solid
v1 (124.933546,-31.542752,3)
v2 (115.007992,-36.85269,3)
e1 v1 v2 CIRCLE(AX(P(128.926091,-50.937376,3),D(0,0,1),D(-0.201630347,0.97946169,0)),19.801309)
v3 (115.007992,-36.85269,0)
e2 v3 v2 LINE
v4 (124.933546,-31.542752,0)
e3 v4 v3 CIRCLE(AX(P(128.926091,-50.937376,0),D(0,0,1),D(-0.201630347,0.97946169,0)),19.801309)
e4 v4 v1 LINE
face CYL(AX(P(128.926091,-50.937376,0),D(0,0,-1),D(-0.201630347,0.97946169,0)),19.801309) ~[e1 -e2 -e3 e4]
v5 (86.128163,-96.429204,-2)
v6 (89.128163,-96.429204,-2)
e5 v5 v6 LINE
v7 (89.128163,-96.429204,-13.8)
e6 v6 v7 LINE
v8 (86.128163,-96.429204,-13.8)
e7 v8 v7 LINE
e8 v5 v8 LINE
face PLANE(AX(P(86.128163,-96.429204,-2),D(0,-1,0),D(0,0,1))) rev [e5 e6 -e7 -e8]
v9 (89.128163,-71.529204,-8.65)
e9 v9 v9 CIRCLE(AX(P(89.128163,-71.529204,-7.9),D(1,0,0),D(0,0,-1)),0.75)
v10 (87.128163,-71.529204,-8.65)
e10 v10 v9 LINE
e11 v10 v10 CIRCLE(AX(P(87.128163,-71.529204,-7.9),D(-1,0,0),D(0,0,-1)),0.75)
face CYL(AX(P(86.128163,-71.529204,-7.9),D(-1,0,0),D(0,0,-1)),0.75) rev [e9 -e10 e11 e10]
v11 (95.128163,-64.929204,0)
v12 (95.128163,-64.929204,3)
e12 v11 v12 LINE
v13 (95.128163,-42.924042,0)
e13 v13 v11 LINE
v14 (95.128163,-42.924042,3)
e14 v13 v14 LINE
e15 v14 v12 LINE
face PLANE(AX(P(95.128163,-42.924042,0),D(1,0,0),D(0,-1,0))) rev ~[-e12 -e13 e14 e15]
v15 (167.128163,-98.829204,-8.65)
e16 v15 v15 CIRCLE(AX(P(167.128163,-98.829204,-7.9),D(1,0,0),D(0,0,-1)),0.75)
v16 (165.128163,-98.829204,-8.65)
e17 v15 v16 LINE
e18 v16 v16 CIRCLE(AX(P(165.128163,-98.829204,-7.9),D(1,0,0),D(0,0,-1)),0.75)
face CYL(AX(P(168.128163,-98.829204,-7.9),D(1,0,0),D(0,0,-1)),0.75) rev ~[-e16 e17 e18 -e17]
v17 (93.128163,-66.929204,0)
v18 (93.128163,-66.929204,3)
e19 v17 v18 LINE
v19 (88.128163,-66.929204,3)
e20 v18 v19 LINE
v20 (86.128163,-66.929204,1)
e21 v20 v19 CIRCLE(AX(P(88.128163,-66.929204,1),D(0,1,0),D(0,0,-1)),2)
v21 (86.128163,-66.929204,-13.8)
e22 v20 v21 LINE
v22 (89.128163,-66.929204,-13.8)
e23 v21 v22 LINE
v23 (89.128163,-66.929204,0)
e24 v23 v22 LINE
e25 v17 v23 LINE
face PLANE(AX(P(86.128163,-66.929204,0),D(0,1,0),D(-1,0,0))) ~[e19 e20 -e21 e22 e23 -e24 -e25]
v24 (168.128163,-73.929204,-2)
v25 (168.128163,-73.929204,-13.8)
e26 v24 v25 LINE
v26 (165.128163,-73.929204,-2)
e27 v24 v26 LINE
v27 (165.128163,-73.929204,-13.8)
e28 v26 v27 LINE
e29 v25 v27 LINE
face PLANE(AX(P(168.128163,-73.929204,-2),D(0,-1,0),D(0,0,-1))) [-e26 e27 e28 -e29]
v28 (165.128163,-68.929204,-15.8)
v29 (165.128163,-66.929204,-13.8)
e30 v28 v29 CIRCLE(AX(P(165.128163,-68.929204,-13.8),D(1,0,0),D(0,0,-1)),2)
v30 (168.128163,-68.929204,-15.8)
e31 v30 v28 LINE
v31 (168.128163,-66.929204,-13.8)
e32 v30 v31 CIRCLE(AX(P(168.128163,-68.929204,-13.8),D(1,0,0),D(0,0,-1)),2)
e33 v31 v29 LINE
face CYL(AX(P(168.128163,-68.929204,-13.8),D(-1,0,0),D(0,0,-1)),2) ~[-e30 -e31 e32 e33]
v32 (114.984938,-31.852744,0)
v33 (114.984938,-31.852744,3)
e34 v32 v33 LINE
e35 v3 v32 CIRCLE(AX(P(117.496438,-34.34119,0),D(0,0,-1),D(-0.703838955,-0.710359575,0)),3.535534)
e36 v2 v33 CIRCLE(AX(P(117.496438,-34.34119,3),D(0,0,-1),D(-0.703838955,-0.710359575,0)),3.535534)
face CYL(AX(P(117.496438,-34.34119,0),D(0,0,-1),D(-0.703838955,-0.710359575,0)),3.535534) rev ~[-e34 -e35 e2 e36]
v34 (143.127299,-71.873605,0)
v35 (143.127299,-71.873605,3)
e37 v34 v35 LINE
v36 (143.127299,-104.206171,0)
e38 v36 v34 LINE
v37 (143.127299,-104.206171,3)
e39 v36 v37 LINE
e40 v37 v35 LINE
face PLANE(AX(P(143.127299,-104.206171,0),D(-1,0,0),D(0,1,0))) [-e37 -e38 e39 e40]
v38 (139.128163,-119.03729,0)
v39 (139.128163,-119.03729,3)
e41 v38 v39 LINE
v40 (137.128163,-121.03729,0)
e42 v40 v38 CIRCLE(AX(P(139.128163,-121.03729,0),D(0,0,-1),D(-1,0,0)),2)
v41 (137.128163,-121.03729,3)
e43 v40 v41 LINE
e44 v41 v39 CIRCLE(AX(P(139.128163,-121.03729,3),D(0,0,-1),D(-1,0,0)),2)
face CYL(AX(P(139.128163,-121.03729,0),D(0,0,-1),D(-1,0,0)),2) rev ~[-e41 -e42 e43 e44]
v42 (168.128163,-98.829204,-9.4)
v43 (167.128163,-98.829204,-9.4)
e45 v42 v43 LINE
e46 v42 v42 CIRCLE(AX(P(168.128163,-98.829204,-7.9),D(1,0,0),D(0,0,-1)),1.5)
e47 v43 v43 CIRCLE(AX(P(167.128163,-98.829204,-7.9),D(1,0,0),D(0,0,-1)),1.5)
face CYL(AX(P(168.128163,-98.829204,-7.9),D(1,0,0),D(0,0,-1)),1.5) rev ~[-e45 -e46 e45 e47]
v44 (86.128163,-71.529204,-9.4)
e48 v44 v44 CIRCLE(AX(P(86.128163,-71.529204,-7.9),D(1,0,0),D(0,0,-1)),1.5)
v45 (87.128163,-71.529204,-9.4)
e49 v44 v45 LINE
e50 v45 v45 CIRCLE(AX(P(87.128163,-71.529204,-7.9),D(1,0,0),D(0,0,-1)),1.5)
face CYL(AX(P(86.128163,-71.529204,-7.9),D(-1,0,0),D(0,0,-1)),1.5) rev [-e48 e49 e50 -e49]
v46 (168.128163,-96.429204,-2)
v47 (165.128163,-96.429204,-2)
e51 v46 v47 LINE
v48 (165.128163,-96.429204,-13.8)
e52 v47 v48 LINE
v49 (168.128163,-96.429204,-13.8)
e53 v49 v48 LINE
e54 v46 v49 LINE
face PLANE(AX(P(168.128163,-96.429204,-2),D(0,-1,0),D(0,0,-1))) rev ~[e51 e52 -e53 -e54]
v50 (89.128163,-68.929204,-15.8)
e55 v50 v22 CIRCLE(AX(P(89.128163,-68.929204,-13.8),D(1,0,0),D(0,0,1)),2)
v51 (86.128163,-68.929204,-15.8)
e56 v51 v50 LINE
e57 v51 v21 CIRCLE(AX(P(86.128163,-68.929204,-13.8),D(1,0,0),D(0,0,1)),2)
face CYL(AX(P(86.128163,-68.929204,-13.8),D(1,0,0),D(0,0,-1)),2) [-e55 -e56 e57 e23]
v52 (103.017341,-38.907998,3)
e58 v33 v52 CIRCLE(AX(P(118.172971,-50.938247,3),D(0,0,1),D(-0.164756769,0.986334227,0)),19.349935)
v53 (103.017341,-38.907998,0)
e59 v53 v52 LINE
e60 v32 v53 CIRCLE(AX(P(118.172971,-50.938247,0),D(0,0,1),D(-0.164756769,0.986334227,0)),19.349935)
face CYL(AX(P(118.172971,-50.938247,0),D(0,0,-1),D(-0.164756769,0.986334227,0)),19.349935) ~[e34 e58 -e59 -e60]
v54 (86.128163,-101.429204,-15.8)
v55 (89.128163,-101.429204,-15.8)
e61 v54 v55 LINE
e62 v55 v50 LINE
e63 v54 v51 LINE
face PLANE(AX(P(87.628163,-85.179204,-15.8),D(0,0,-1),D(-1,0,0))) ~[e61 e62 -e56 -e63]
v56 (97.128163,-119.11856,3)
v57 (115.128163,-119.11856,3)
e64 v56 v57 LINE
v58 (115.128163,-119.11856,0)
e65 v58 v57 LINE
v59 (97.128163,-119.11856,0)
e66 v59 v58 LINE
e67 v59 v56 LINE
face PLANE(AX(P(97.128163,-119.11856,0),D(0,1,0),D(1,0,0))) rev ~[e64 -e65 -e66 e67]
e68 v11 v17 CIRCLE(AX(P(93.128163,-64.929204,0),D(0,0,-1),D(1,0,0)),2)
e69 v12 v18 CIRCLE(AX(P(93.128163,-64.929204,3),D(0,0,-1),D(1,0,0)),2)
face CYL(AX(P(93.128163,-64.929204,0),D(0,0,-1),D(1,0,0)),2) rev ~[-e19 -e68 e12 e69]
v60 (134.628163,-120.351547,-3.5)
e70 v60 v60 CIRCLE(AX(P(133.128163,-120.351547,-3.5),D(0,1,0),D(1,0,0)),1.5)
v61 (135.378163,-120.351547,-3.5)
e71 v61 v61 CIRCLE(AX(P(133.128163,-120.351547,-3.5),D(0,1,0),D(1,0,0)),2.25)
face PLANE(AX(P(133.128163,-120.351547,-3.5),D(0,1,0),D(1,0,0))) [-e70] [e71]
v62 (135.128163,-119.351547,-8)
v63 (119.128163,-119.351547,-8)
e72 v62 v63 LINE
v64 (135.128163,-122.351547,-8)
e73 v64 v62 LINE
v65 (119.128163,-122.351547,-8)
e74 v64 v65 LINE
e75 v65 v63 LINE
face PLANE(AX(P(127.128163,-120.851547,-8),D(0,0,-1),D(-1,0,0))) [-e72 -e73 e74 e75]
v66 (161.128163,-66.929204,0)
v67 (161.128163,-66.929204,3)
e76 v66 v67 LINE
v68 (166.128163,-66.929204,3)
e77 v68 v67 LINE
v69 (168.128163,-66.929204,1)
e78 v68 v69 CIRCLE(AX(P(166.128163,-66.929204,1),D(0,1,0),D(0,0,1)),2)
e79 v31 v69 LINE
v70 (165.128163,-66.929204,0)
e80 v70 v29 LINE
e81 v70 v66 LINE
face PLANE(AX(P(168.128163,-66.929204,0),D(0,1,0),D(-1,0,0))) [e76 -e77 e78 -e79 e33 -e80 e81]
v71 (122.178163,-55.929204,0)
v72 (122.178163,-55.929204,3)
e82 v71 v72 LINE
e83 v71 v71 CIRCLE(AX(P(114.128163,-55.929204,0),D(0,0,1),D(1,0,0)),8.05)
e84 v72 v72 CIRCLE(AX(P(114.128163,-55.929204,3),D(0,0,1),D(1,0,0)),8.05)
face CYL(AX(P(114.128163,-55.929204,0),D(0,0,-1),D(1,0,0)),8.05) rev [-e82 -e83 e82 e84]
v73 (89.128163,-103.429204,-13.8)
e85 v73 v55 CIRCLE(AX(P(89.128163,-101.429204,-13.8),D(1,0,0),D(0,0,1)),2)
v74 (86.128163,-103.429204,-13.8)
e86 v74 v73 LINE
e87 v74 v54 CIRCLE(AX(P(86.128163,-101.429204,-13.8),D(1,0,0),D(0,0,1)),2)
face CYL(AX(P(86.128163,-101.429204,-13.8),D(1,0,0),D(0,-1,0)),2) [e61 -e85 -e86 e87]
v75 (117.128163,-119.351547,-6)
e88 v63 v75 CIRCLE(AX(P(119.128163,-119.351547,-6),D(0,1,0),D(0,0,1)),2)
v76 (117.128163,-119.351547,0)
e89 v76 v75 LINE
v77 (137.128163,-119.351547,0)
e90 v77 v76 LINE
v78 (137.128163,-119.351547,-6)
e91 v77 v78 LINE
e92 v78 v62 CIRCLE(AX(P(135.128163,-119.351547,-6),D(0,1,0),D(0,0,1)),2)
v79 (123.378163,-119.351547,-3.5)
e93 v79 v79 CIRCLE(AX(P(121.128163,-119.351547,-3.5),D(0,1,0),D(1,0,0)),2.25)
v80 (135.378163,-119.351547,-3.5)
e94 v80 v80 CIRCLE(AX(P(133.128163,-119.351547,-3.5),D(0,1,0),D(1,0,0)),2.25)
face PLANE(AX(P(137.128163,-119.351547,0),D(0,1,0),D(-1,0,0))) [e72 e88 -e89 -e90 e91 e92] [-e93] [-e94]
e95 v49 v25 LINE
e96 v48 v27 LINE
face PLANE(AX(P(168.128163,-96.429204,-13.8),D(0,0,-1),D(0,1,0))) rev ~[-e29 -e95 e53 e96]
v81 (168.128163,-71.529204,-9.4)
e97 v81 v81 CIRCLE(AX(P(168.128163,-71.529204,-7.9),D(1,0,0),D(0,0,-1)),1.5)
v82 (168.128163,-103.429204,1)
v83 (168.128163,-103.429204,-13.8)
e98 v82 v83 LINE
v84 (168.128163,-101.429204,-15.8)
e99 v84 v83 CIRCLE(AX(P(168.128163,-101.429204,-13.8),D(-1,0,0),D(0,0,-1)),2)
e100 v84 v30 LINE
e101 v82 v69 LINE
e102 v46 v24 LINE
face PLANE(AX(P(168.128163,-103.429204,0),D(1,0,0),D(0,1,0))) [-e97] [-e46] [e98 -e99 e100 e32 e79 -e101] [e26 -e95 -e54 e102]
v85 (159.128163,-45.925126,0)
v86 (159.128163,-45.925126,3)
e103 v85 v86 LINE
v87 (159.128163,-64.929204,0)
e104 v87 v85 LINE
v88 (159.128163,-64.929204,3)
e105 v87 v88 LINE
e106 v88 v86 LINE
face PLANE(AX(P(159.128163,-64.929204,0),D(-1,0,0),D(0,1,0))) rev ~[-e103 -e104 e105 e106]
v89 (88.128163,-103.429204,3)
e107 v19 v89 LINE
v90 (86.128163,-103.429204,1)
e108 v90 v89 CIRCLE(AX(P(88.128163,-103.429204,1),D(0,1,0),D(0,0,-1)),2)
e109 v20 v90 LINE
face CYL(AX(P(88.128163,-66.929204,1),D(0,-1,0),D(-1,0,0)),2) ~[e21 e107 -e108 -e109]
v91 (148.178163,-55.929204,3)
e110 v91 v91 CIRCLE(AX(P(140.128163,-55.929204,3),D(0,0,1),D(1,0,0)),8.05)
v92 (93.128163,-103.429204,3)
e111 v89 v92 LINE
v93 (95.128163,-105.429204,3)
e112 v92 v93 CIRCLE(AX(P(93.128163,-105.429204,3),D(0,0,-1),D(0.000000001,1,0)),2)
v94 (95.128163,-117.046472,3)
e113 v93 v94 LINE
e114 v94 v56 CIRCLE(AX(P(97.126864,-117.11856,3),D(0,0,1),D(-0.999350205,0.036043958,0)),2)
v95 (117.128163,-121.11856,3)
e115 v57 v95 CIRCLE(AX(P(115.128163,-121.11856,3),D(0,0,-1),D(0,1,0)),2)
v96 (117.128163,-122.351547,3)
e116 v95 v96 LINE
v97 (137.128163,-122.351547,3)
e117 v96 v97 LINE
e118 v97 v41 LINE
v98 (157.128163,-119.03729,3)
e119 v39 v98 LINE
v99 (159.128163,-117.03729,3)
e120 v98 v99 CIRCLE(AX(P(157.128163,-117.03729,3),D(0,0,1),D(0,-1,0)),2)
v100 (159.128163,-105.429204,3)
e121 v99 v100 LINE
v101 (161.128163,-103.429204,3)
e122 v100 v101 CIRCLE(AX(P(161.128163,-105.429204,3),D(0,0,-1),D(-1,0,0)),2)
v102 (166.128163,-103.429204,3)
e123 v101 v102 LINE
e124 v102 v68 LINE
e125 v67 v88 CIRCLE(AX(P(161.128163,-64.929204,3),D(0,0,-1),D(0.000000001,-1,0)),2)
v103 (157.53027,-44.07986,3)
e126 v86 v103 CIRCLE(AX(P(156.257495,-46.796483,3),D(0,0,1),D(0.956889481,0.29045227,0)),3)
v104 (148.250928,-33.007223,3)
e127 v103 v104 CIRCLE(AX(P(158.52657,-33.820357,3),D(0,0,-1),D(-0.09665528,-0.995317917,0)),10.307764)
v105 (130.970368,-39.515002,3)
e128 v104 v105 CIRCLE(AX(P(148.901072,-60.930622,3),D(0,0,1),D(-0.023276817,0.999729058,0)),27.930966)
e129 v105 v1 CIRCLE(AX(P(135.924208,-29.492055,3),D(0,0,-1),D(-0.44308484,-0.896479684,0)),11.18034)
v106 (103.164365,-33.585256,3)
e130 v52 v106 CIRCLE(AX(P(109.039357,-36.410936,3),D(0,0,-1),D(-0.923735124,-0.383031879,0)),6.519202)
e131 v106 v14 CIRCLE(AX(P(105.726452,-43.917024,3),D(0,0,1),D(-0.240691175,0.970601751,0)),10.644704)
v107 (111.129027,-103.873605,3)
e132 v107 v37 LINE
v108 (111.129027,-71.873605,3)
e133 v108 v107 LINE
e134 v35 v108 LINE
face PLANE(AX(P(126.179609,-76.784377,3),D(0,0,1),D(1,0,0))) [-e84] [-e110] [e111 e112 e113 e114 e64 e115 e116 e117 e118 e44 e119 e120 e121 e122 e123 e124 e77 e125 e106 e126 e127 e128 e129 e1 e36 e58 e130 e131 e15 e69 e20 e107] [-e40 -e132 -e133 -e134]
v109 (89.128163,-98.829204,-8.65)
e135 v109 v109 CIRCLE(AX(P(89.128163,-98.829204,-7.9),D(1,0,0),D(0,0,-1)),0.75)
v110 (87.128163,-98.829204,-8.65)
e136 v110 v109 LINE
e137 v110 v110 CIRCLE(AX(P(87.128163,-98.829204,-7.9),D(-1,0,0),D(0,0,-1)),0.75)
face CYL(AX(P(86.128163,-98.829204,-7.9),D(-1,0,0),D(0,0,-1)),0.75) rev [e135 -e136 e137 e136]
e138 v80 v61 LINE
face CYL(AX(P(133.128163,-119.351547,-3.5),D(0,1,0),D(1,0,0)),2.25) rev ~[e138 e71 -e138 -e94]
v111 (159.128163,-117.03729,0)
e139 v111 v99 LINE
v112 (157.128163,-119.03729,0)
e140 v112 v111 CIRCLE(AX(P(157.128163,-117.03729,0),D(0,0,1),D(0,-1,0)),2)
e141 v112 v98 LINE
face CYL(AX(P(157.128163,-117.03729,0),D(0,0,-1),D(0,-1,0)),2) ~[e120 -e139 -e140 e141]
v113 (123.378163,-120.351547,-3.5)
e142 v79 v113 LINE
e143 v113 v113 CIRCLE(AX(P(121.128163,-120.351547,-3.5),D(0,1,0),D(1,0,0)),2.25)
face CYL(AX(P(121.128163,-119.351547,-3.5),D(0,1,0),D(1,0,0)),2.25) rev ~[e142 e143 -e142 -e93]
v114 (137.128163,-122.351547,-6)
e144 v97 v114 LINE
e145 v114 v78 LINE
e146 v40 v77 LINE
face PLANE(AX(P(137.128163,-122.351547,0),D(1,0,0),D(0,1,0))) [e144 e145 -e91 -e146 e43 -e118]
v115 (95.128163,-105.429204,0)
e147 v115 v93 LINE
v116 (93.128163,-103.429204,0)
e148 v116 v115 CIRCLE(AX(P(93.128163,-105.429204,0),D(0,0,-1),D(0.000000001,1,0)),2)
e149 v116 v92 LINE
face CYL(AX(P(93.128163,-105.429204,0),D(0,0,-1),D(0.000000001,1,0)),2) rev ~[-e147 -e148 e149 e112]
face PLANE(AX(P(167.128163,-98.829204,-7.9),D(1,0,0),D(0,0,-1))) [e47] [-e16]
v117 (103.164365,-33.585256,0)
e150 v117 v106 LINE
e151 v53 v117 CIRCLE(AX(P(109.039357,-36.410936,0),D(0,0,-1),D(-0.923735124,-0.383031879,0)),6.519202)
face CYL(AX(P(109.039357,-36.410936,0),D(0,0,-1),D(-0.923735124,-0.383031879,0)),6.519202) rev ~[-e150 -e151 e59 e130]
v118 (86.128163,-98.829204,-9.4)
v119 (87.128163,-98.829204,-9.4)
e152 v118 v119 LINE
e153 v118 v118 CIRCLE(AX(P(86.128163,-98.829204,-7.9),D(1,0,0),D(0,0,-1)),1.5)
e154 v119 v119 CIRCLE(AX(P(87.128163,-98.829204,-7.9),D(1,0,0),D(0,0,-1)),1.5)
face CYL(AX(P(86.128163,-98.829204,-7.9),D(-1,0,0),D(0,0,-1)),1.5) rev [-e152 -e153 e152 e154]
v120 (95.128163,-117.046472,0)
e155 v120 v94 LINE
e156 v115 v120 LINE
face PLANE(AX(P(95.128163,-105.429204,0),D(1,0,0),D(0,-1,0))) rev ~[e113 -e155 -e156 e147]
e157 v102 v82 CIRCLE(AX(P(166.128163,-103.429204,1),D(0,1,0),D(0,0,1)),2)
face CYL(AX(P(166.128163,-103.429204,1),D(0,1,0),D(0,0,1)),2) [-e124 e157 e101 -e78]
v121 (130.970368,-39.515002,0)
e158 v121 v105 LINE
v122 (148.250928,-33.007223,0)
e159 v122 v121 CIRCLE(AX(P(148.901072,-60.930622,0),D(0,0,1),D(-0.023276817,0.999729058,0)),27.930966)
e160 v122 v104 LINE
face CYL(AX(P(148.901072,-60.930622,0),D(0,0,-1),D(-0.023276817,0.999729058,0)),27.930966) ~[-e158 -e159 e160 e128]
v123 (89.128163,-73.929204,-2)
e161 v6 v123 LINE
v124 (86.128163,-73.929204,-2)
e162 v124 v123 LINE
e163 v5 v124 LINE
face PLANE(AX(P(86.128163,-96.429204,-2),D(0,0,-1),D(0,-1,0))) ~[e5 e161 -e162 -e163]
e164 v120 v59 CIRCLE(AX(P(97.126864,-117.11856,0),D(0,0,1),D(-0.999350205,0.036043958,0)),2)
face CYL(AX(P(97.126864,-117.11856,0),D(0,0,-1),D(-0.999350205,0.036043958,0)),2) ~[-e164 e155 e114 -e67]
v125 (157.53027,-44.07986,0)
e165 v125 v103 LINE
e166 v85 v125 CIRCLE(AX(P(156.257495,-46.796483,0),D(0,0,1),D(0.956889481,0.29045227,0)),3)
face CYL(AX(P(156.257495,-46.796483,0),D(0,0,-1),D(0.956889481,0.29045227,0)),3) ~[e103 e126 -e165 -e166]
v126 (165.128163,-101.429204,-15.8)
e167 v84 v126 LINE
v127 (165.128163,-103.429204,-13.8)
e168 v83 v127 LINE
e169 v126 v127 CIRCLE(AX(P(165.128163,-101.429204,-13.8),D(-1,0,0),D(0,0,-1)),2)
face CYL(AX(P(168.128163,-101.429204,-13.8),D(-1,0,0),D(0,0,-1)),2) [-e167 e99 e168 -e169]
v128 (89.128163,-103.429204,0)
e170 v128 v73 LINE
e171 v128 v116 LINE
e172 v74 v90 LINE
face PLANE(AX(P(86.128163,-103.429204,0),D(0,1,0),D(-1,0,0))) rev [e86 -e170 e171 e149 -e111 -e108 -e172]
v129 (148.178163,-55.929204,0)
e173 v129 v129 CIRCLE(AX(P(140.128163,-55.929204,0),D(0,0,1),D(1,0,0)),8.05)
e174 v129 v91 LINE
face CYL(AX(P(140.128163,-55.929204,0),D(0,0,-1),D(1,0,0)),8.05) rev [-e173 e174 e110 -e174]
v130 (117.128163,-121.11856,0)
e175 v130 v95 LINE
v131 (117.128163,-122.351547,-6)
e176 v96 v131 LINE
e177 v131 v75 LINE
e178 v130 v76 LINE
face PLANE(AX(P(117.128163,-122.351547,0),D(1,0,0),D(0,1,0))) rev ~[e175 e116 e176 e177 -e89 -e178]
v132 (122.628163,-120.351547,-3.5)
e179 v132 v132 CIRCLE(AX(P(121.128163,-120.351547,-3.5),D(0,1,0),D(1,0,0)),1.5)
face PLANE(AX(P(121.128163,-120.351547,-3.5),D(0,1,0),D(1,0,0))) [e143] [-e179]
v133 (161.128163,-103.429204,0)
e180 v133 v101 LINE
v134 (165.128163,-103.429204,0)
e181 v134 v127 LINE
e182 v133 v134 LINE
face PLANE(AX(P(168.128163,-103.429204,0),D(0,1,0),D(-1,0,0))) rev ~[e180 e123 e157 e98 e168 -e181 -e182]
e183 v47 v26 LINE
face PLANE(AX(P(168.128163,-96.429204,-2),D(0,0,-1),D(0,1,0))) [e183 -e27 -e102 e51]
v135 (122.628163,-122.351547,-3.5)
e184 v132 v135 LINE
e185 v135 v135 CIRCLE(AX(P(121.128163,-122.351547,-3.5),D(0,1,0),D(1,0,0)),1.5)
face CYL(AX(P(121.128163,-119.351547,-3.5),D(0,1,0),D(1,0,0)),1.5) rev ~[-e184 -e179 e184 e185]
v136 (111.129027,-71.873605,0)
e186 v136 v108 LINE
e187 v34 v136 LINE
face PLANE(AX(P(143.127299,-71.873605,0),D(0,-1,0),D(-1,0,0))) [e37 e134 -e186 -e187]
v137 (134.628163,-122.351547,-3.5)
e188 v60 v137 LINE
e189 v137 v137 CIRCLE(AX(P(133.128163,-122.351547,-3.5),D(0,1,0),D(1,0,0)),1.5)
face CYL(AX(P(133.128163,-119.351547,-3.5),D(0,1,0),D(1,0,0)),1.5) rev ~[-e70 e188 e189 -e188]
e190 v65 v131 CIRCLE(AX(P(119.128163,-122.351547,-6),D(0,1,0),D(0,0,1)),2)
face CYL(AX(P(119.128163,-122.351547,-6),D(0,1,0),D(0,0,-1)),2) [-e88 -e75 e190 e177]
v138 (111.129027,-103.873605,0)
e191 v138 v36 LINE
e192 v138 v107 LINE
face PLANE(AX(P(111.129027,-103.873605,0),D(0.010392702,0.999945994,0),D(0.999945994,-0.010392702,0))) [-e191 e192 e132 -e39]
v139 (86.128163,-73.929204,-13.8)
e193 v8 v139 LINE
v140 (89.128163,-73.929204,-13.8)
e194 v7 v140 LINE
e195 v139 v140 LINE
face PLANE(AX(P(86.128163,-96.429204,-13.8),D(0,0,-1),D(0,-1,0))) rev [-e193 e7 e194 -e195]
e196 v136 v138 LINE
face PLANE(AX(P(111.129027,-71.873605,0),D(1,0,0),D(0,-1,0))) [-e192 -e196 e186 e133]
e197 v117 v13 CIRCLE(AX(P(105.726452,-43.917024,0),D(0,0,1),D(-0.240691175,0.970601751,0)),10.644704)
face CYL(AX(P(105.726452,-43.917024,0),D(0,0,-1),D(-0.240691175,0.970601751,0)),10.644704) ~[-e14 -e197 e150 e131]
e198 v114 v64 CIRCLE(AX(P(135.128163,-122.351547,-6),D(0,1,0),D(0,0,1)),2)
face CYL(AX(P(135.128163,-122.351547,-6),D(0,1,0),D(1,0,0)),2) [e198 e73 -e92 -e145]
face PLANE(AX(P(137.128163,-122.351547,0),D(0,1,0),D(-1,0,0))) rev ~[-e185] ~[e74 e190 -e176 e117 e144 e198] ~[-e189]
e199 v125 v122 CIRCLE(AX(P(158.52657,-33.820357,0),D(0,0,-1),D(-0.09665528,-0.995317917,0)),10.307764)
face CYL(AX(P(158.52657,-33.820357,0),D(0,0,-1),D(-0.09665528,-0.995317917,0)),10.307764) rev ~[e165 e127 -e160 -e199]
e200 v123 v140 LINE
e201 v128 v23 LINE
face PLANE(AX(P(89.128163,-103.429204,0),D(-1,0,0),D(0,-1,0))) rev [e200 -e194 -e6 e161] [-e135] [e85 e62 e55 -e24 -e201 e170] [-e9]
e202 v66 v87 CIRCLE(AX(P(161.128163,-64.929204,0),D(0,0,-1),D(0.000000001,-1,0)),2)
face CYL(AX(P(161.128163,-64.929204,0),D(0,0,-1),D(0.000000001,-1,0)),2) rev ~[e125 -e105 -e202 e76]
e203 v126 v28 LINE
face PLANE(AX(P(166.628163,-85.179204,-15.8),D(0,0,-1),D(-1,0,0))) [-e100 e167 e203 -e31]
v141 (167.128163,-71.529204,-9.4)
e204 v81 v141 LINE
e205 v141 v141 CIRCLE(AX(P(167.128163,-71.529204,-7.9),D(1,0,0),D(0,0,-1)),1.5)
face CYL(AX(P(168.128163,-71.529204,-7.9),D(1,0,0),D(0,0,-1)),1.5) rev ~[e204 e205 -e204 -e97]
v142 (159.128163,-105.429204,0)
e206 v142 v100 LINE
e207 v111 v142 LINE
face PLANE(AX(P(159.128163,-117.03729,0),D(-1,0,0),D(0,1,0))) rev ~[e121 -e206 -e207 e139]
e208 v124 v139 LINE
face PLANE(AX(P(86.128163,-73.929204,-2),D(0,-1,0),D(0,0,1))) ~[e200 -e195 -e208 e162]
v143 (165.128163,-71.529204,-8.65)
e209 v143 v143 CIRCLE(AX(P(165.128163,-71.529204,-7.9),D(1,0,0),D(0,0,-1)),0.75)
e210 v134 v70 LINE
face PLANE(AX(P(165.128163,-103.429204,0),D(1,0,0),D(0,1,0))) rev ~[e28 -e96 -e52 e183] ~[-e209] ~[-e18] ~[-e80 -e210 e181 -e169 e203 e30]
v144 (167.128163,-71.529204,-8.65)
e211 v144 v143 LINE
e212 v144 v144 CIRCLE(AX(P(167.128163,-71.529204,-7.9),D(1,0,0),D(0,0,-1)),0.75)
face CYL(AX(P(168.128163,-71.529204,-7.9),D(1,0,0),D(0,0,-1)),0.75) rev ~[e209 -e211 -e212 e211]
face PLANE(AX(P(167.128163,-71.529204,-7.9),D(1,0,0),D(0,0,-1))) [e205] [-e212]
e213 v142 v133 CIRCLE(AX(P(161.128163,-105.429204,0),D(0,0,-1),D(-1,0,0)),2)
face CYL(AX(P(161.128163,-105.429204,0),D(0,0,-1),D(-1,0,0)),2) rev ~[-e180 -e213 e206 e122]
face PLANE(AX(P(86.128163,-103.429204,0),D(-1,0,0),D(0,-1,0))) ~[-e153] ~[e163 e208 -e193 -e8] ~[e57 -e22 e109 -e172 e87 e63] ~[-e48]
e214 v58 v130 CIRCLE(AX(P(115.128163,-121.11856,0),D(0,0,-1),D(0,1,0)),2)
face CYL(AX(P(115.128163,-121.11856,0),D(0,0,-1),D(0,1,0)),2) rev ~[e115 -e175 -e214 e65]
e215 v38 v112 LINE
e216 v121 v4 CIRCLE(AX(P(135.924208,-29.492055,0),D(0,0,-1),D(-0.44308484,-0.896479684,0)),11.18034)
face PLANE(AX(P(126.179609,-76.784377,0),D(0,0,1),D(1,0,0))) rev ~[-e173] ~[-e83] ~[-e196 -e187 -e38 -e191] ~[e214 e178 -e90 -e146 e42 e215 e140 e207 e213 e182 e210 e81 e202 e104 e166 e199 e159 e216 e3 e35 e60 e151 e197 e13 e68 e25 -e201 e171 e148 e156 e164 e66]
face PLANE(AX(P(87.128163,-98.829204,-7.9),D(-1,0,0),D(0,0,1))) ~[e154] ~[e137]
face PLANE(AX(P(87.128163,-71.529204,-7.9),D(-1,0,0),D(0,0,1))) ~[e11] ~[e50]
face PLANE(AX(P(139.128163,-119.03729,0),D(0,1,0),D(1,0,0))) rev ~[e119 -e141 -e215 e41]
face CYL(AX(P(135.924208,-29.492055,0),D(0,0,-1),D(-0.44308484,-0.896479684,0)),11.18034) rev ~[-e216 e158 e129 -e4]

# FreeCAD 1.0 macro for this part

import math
import FreeCAD as App
import Part
import Sketcher
Q = App.Units.Quantity


def edges_at(feature, points):
    """Names of the edges that pass closest to the given points."""
    edges = feature.Shape.Edges
    near = lambda p: min(range(len(edges)), key=lambda i: edges[i].distToShape(Part.Vertex(*p))[0])
    return sorted({f"Edge{near(p) + 1}" for p in points})

doc = App.newDocument("Part")
body = doc.addObject("PartDesign::Body", "Body")

sketch1 = body.newObject("Sketcher::SketchObject", "Sketch")
sketch1.AttachmentSupport = (doc.getObject("XY_Plane"), [""])
sketch1.MapMode = "FlatFace"
sketch1.addGeometry(Part.LineSegment(App.Vector(117.1, -122.4, 0), App.Vector(137.1, -122.4, 0)), False)
sketch1.addGeometry(Part.LineSegment(App.Vector(137.1, -122.4, 0), App.Vector(137.1, -121, 0)), False)
sketch1.addGeometry(Part.ArcOfCircle(Part.Circle(App.Vector(139.1, -121, 0), App.Vector(0, 0, 1), 2), math.radians(90), math.radians(180)), False)
sketch1.addGeometry(Part.LineSegment(App.Vector(139.1, -119, 0), App.Vector(157.1, -119, 0)), False)
sketch1.addGeometry(Part.ArcOfCircle(Part.Circle(App.Vector(157.1, -117, 0), App.Vector(0, 0, 1), 2), math.radians(-90), math.radians(0)), False)
sketch1.addGeometry(Part.LineSegment(App.Vector(159.1, -117, 0), App.Vector(159.1, -105.4, 0)), False)
sketch1.addGeometry(Part.ArcOfCircle(Part.Circle(App.Vector(161.1, -105.4, 0), App.Vector(0, 0, 1), 2), math.radians(90), math.radians(180)), False)
sketch1.addGeometry(Part.LineSegment(App.Vector(161.1, -103.4, 0), App.Vector(168.1, -103.4, 0)), False)
sketch1.addGeometry(Part.LineSegment(App.Vector(168.1, -103.4, 0), App.Vector(168.1, -66.9, 0)), False)
sketch1.addGeometry(Part.LineSegment(App.Vector(168.1, -66.9, 0), App.Vector(161.1, -66.9, 0)), False)
sketch1.addGeometry(Part.ArcOfCircle(Part.Circle(App.Vector(161.1, -64.9, 0), App.Vector(0, 0, 1), 2), math.radians(180), math.radians(270)), False)
sketch1.addGeometry(Part.LineSegment(App.Vector(159.1, -64.9, 0), App.Vector(159.1, -45.9, 0)), False)
sketch1.addGeometry(Part.ArcOfCircle(Part.Circle(App.Vector(156.3, -46.8, 0), App.Vector(0, 0, 1), 3), math.radians(17), math.radians(65)), False)
sketch1.addGeometry(Part.ArcOfCircle(Part.Circle(App.Vector(158.5, -33.8, 0), App.Vector(0, 0, 1), 10.3), math.radians(175), math.radians(264)), False)
sketch1.addGeometry(Part.ArcOfCircle(Part.Circle(App.Vector(148.9, -60.9, 0), App.Vector(0, 0, 1), 27.9), math.radians(91), math.radians(130)), False)
sketch1.addGeometry(Part.ArcOfCircle(Part.Circle(App.Vector(135.9, -29.5, 0), App.Vector(0, 0, 1), 11.2), math.radians(-169), math.radians(-116)), False)
sketch1.addGeometry(Part.ArcOfCircle(Part.Circle(App.Vector(128.9, -50.9, 0), App.Vector(0, 0, 1), 19.8), math.radians(102), math.radians(135)), False)
sketch1.addGeometry(Part.ArcOfCircle(Part.Circle(App.Vector(117.5, -34.3, 0), App.Vector(0, 0, 1), 3.5), math.radians(135), math.radians(225)), False)
sketch1.addGeometry(Part.ArcOfCircle(Part.Circle(App.Vector(118.2, -50.9, 0), App.Vector(0, 0, 1), 19.3), math.radians(99), math.radians(142)), False)
sketch1.addGeometry(Part.ArcOfCircle(Part.Circle(App.Vector(109, -36.4, 0), App.Vector(0, 0, 1), 6.5), math.radians(154), math.radians(203)), False)
sketch1.addGeometry(Part.ArcOfCircle(Part.Circle(App.Vector(105.7, -43.9, 0), App.Vector(0, 0, 1), 10.6), math.radians(104), math.radians(175)), False)
sketch1.addGeometry(Part.LineSegment(App.Vector(95.1, -42.9, 0), App.Vector(95.1, -64.9, 0)), False)
sketch1.addGeometry(Part.ArcOfCircle(Part.Circle(App.Vector(93.1, -64.9, 0), App.Vector(0, 0, 1), 2), math.radians(-90), math.radians(0)), False)
sketch1.addGeometry(Part.LineSegment(App.Vector(93.1, -66.9, 0), App.Vector(86.1, -66.9, 0)), False)
sketch1.addGeometry(Part.LineSegment(App.Vector(86.1, -66.9, 0), App.Vector(86.1, -103.4, 0)), False)
sketch1.addGeometry(Part.LineSegment(App.Vector(86.1, -103.4, 0), App.Vector(93.1, -103.4, 0)), False)
sketch1.addGeometry(Part.ArcOfCircle(Part.Circle(App.Vector(93.1, -105.4, 0), App.Vector(0, 0, 1), 2), math.radians(0), math.radians(90)), False)
sketch1.addGeometry(Part.LineSegment(App.Vector(95.1, -105.4, 0), App.Vector(95.1, -117, 0)), False)
sketch1.addGeometry(Part.ArcOfCircle(Part.Circle(App.Vector(97.1, -117.1, 0), App.Vector(0, 0, 1), 2), math.radians(178), math.radians(270)), False)
sketch1.addGeometry(Part.LineSegment(App.Vector(97.1, -119.1, 0), App.Vector(115.1, -119.1, 0)), False)
sketch1.addGeometry(Part.ArcOfCircle(Part.Circle(App.Vector(115.1, -121.1, 0), App.Vector(0, 0, 1), 2), math.radians(0), math.radians(90)), False)
sketch1.addGeometry(Part.LineSegment(App.Vector(117.1, -121.1, 0), App.Vector(117.1, -122.4, 0)), False)
sketch1.addGeometry(Part.LineSegment(App.Vector(143.1, -71.9, 0), App.Vector(143.1, -104.2, 0)), False)
sketch1.addGeometry(Part.LineSegment(App.Vector(143.1, -104.2, 0), App.Vector(111.1, -103.9, 0)), False)
sketch1.addGeometry(Part.LineSegment(App.Vector(111.1, -103.9, 0), App.Vector(111.1, -71.9, 0)), False)
sketch1.addGeometry(Part.LineSegment(App.Vector(111.1, -71.9, 0), App.Vector(143.1, -71.9, 0)), False)
sketch1.addGeometry(Part.Circle(App.Vector(114.1, -55.9, 0), App.Vector(0, 0, 1), 8.1), False)
sketch1.addGeometry(Part.Circle(App.Vector(140.1, -55.9, 0), App.Vector(0, 0, 1), 8.1), False)
sketch1.addConstraint(Sketcher.Constraint("Coincident", 0, 2, 1, 1))
sketch1.addConstraint(Sketcher.Constraint("Tangent", 1, 2, 2, 2))
sketch1.addConstraint(Sketcher.Constraint("Tangent", 2, 1, 3, 1))
sketch1.addConstraint(Sketcher.Constraint("Tangent", 3, 2, 4, 1))
sketch1.addConstraint(Sketcher.Constraint("Tangent", 4, 2, 5, 1))
sketch1.addConstraint(Sketcher.Constraint("Tangent", 5, 2, 6, 2))
sketch1.addConstraint(Sketcher.Constraint("Tangent", 6, 1, 7, 1))
sketch1.addConstraint(Sketcher.Constraint("Coincident", 7, 2, 8, 1))
sketch1.addConstraint(Sketcher.Constraint("Coincident", 8, 2, 9, 1))
sketch1.addConstraint(Sketcher.Constraint("Tangent", 9, 2, 10, 2))
sketch1.addConstraint(Sketcher.Constraint("Tangent", 10, 1, 11, 1))
sketch1.addConstraint(Sketcher.Constraint("Coincident", 11, 2, 12, 1))
sketch1.addConstraint(Sketcher.Constraint("Coincident", 12, 2, 13, 2))
sketch1.addConstraint(Sketcher.Constraint("Coincident", 13, 1, 14, 1))
sketch1.addConstraint(Sketcher.Constraint("Coincident", 14, 2, 15, 2))
sketch1.addConstraint(Sketcher.Constraint("Coincident", 15, 1, 16, 1))
sketch1.addConstraint(Sketcher.Constraint("Coincident", 16, 2, 17, 2))
sketch1.addConstraint(Sketcher.Constraint("Coincident", 17, 1, 18, 1))
sketch1.addConstraint(Sketcher.Constraint("Coincident", 18, 2, 19, 2))
sketch1.addConstraint(Sketcher.Constraint("Coincident", 19, 1, 20, 1))
sketch1.addConstraint(Sketcher.Constraint("Coincident", 20, 2, 21, 1))
sketch1.addConstraint(Sketcher.Constraint("Tangent", 21, 2, 22, 2))
sketch1.addConstraint(Sketcher.Constraint("Tangent", 22, 1, 23, 1))
sketch1.addConstraint(Sketcher.Constraint("Coincident", 23, 2, 24, 1))
sketch1.addConstraint(Sketcher.Constraint("Coincident", 24, 2, 25, 1))
sketch1.addConstraint(Sketcher.Constraint("Tangent", 25, 2, 26, 2))
sketch1.addConstraint(Sketcher.Constraint("Tangent", 26, 1, 27, 1))
sketch1.addConstraint(Sketcher.Constraint("Coincident", 27, 2, 28, 1))
sketch1.addConstraint(Sketcher.Constraint("Coincident", 28, 2, 29, 1))
sketch1.addConstraint(Sketcher.Constraint("Tangent", 29, 2, 30, 2))
sketch1.addConstraint(Sketcher.Constraint("Tangent", 30, 1, 31, 1))
sketch1.addConstraint(Sketcher.Constraint("Coincident", 31, 2, 0, 1))
sketch1.addConstraint(Sketcher.Constraint("Coincident", 32, 2, 33, 1))
sketch1.addConstraint(Sketcher.Constraint("Coincident", 33, 2, 34, 1))
sketch1.addConstraint(Sketcher.Constraint("Coincident", 34, 2, 35, 1))
sketch1.addConstraint(Sketcher.Constraint("Coincident", 35, 2, 32, 1))
sketch1.addConstraint(Sketcher.Constraint("Horizontal", 0))
sketch1.addConstraint(Sketcher.Constraint("Vertical", 1))
sketch1.addConstraint(Sketcher.Constraint("Horizontal", 3))
sketch1.addConstraint(Sketcher.Constraint("Vertical", 5))
sketch1.addConstraint(Sketcher.Constraint("Horizontal", 7))
sketch1.addConstraint(Sketcher.Constraint("Vertical", 8))
sketch1.addConstraint(Sketcher.Constraint("Horizontal", 9))
sketch1.addConstraint(Sketcher.Constraint("Vertical", 11))
sketch1.addConstraint(Sketcher.Constraint("Vertical", 21))
sketch1.addConstraint(Sketcher.Constraint("Horizontal", 23))
sketch1.addConstraint(Sketcher.Constraint("Vertical", 24))
sketch1.addConstraint(Sketcher.Constraint("Horizontal", 25))
sketch1.addConstraint(Sketcher.Constraint("Vertical", 27))
sketch1.addConstraint(Sketcher.Constraint("Horizontal", 29))
sketch1.addConstraint(Sketcher.Constraint("Vertical", 31))
sketch1.addConstraint(Sketcher.Constraint("Vertical", 32))
sketch1.addConstraint(Sketcher.Constraint("Vertical", 34))
sketch1.addConstraint(Sketcher.Constraint("Horizontal", 35))
sketch1.addConstraint(Sketcher.Constraint("Equal", 2, 4))
sketch1.addConstraint(Sketcher.Constraint("Equal", 4, 6))
sketch1.addConstraint(Sketcher.Constraint("Equal", 6, 10))
sketch1.addConstraint(Sketcher.Constraint("Equal", 10, 22))
sketch1.addConstraint(Sketcher.Constraint("Equal", 22, 26))
sketch1.addConstraint(Sketcher.Constraint("Equal", 26, 28))
sketch1.addConstraint(Sketcher.Constraint("Equal", 28, 30))
sketch1.addConstraint(Sketcher.Constraint("Equal", 36, 37))
sketch1.addConstraint(Sketcher.Constraint("Horizontal", 10, 3, 22, 3))
sketch1.addConstraint(Sketcher.Constraint("Horizontal", 6, 3, 26, 3))
sketch1.addConstraint(Sketcher.Constraint("Horizontal", 36, 3, 37, 3))
sketch1.addConstraint(Sketcher.Constraint("Vertical", 6, 3, 10, 3))
sketch1.addConstraint(Sketcher.Constraint("Vertical", 22, 3, 26, 3))
sketch1.addConstraint(Sketcher.Constraint("Equal", 9, 23))
sketch1.addConstraint(Sketcher.Constraint("Equal", 3, 29))
sketch1.addConstraint(Sketcher.Constraint("Radius", 2, Q("2 mm")))
sketch1.addConstraint(Sketcher.Constraint("Radius", 12, Q("3 mm")))
sketch1.addConstraint(Sketcher.Constraint("Diameter", 36, Q("16.1 mm")))
sketch1.addConstraint(Sketcher.Constraint("DistanceX", 0, 1, 0, 2, Q("20 mm")))
sketch1.addConstraint(Sketcher.Constraint("DistanceX", 3, 1, 3, 2, Q("18 mm")))
sketch1.addConstraint(Sketcher.Constraint("DistanceX", 7, 1, 7, 2, Q("7 mm")))
sketch1.addConstraint(Sketcher.Constraint("DistanceY", 34, 1, 34, 2, Q("32 mm")))
sketch1.addConstraint(Sketcher.Constraint("Distance", 33, Q("32 mm")))
sketch1.addConstraint(Sketcher.Constraint("DistanceY", 8, 1, 8, 2, Q("36.5 mm")))
sketch1.addConstraint(Sketcher.Constraint("DistanceX", 26, 3, 2, 3, Q("46 mm")))
sketch1.addConstraint(Sketcher.Constraint("DistanceX", 37, 3, 10, 3, Q("21 mm")))
sketch1.addConstraint(Sketcher.Constraint("DistanceY", 10, 3, 37, 3, Q("9 mm")))
sketch1.addConstraint(Sketcher.Constraint("DistanceX", 21, 2, 36, 3, Q("19 mm")))
sketch1.addConstraint(Sketcher.Constraint("Radius", 15, Q("11.18034 mm")))
sketch1.addConstraint(Sketcher.Constraint("Radius", 16, Q("19.801309 mm")))
sketch1.addConstraint(Sketcher.Constraint("DistanceY", 18, 2, -1, 1, Q("38.907998 mm")))
sketch1.addConstraint(Sketcher.Constraint("Radius", 13, Q("10.307764 mm")))
sketch1.addConstraint(Sketcher.Constraint("Radius", 14, Q("27.930966 mm")))
sketch1.addConstraint(Sketcher.Constraint("Radius", 17, Q("3.535534 mm")))
sketch1.addConstraint(Sketcher.Constraint("Radius", 18, Q("19.349935 mm")))
sketch1.addConstraint(Sketcher.Constraint("Radius", 19, Q("6.519202 mm")))
sketch1.addConstraint(Sketcher.Constraint("Radius", 20, Q("10.644704 mm")))
sketch1.addConstraint(Sketcher.Constraint("DistanceX", 35, 1, 35, 2, Q("31.998272 mm")))
sketch1.addConstraint(Sketcher.Constraint("DistanceY", 21, 2, 21, 1, Q("22.005161 mm")))
sketch1.addConstraint(Sketcher.Constraint("DistanceY", 27, 2, 27, 1, Q("11.617268 mm")))
sketch1.addConstraint(Sketcher.Constraint("DistanceX", -1, 1, 32, 2, Q("143.127299 mm")))
sketch1.addConstraint(Sketcher.Constraint("DistanceX", 18, 3, 14, 3, Q("30.728102 mm")))
sketch1.addConstraint(Sketcher.Constraint("DistanceX", 26, 3, 28, 3, Q("3.9987 mm")))
sketch1.addConstraint(Sketcher.Constraint("DistanceX", 12, 2, 13, 3, Q("0.9963 mm")))
sketch1.addConstraint(Sketcher.Constraint("DistanceY", 16, 2, 17, 3, Q("2.5115 mm")))
sketch1.addConstraint(Sketcher.Constraint("DistanceX", 17, 1, 17, 3, Q("2.5115 mm")))
sketch1.addConstraint(Sketcher.Constraint("DistanceY", 26, 1, 33, 2, Q("1.555599 mm")))
sketch1.addConstraint(Sketcher.Constraint("DistanceY", 1, 1, 1, 2, Q("1.314258 mm")))
sketch1.addConstraint(Sketcher.Constraint("DistanceY", 5, 1, 5, 2, Q("11.608086 mm")))
sketch1.addConstraint(Sketcher.Constraint("DistanceY", 11, 1, 11, 2, Q("19.004078 mm")))
sketch1.addConstraint(Sketcher.Constraint("DistanceY", 2, 3, -1, 1, Q("121.03729 mm")))
sketch1.addConstraint(Sketcher.Constraint("DistanceX", -1, 1, 13, 3, Q("158.52657 mm")))
sketch1.addConstraint(Sketcher.Constraint("DistanceY", 14, 3, -1, 1, Q("60.930622 mm")))
sketch1.addConstraint(Sketcher.Constraint("DistanceX", -1, 1, 16, 3, Q("128.926091 mm")))
sketch1.addConstraint(Sketcher.Constraint("DistanceX", -1, 1, 17, 3, Q("117.496438 mm")))
sketch1.addConstraint(Sketcher.Constraint("DistanceY", 17, 3, -1, 1, Q("34.34119 mm")))
sketch1.addConstraint(Sketcher.Constraint("DistanceX", -1, 1, 18, 3, Q("118.172971 mm")))
sketch1.addConstraint(Sketcher.Constraint("DistanceX", -1, 1, 20, 3, Q("105.726452 mm")))
sketch1.addConstraint(Sketcher.Constraint("DistanceY", 12, 2, -1, 1, Q("44.07986 mm")))
sketch1.addConstraint(Sketcher.Constraint("DistanceX", -1, 1, 14, 2, Q("130.970368 mm")))
sketch1.addConstraint(Sketcher.Constraint("DistanceX", 12, 3, 10, 3, Q("4.870668 mm")))
sketch1.addConstraint(Sketcher.Constraint("DistanceY", 12, 3, 15, 3, Q("17.304428 mm")))
sketch1.addConstraint(Sketcher.Constraint("DistanceX", 19, 3, 17, 3, Q("8.457081 mm")))
pad1 = body.newObject("PartDesign::Pad", "Pad")
pad1.Profile = sketch1
pad1.Length = 3

sketch2 = body.newObject("Sketcher::SketchObject", "Sketch001")
sketch2.AttachmentSupport = (doc.getObject("XY_Plane"), [""])
sketch2.MapMode = "FlatFace"
sketch2.addGeometry(Part.LineSegment(App.Vector(168.1, -66.9, 0), App.Vector(168.1, -103.4, 0)), False)
sketch2.addGeometry(Part.LineSegment(App.Vector(168.1, -103.4, 0), App.Vector(165.1, -103.4, 0)), False)
sketch2.addGeometry(Part.LineSegment(App.Vector(165.1, -103.4, 0), App.Vector(165.1, -66.9, 0)), False)
sketch2.addGeometry(Part.LineSegment(App.Vector(165.1, -66.9, 0), App.Vector(168.1, -66.9, 0)), False)
sketch2.addConstraint(Sketcher.Constraint("Coincident", 0, 2, 1, 1))
sketch2.addConstraint(Sketcher.Constraint("Coincident", 1, 2, 2, 1))
sketch2.addConstraint(Sketcher.Constraint("Coincident", 2, 2, 3, 1))
sketch2.addConstraint(Sketcher.Constraint("Coincident", 3, 2, 0, 1))
sketch2.addConstraint(Sketcher.Constraint("Vertical", 0))
sketch2.addConstraint(Sketcher.Constraint("Horizontal", 1))
sketch2.addConstraint(Sketcher.Constraint("Vertical", 2))
sketch2.addConstraint(Sketcher.Constraint("Horizontal", 3))
sketch2.addConstraint(Sketcher.Constraint("DistanceX", 1, 2, 1, 1, Q("3 mm")))
sketch2.addConstraint(Sketcher.Constraint("DistanceY", 0, 2, 0, 1, Q("36.5 mm")))
sketch2.addConstraint(Sketcher.Constraint("DistanceX", -1, 1, 0, 2, Q("168.128163 mm")))
sketch2.addConstraint(Sketcher.Constraint("DistanceY", 0, 2, -1, 1, Q("103.429204 mm")))
pad2 = body.newObject("PartDesign::Pad", "Pad001")
pad2.Profile = sketch2
pad2.Length = 15.8
pad2.Reversed = True

sketch3 = body.newObject("Sketcher::SketchObject", "Sketch002")
sketch3.AttachmentSupport = (doc.getObject("YZ_Plane"), [""])
sketch3.MapMode = "FlatFace"
sketch3.AttachmentOffset = App.Placement(App.Vector(0, 0, 168.128163), App.Rotation())
sketch3.addGeometry(Part.Circle(App.Vector(-98.8, -7.9, 0), App.Vector(0, 0, 1), 0.8), False)
sketch3.addGeometry(Part.Circle(App.Vector(-71.5, -7.9, 0), App.Vector(0, 0, 1), 0.8), False)
sketch3.addGeometry(Part.LineSegment(App.Vector(-73.9, -2, 0), App.Vector(-96.4, -2, 0)), False)
sketch3.addGeometry(Part.LineSegment(App.Vector(-96.4, -2, 0), App.Vector(-96.4, -13.8, 0)), False)
sketch3.addGeometry(Part.LineSegment(App.Vector(-96.4, -13.8, 0), App.Vector(-73.9, -13.8, 0)), False)
sketch3.addGeometry(Part.LineSegment(App.Vector(-73.9, -13.8, 0), App.Vector(-73.9, -2, 0)), False)
sketch3.addConstraint(Sketcher.Constraint("Coincident", 2, 2, 3, 1))
sketch3.addConstraint(Sketcher.Constraint("Coincident", 3, 2, 4, 1))
sketch3.addConstraint(Sketcher.Constraint("Coincident", 4, 2, 5, 1))
sketch3.addConstraint(Sketcher.Constraint("Coincident", 5, 2, 2, 1))
sketch3.addConstraint(Sketcher.Constraint("Horizontal", 2))
sketch3.addConstraint(Sketcher.Constraint("Vertical", 3))
sketch3.addConstraint(Sketcher.Constraint("Horizontal", 4))
sketch3.addConstraint(Sketcher.Constraint("Vertical", 5))
sketch3.addConstraint(Sketcher.Constraint("Equal", 0, 1))
sketch3.addConstraint(Sketcher.Constraint("Horizontal", 0, 3, 1, 3))
sketch3.addConstraint(Sketcher.Constraint("Diameter", 0, Q("1.5 mm")))
sketch3.addConstraint(Sketcher.Constraint("DistanceX", 2, 2, 2, 1, Q("22.5 mm")))
sketch3.addConstraint(Sketcher.Constraint("DistanceY", 3, 2, 3, 1, Q("11.8 mm")))
sketch3.addConstraint(Sketcher.Constraint("DistanceY", 2, 2, -1, 1, Q("2 mm")))
sketch3.addConstraint(Sketcher.Constraint("DistanceY", 0, 3, -1, 1, Q("7.9 mm")))
sketch3.addConstraint(Sketcher.Constraint("DistanceX", 0, 3, 1, 3, Q("27.3 mm")))
sketch3.addConstraint(Sketcher.Constraint("DistanceX", 0, 3, 2, 2, Q("2.4 mm")))
sketch3.addConstraint(Sketcher.Constraint("DistanceX", 0, 3, -1, 1, Q("98.829204 mm")))
pocket1 = body.newObject("PartDesign::Pocket", "Pocket")
pocket1.Profile = sketch3
pocket1.Length = 3
doc.recompute()

fillet = body.newObject("PartDesign::Fillet", "Fillet")
fillet.Base = (pocket1, edges_at(pocket1, [(166.628, -103.429, -15.8), (166.628, -66.929, -15.8)]))
fillet.Radius = 2

sketch4 = body.newObject("Sketcher::SketchObject", "Sketch003")
sketch4.AttachmentSupport = (doc.getObject("YZ_Plane"), [""])
sketch4.MapMode = "FlatFace"
sketch4.AttachmentOffset = App.Placement(App.Vector(0, 0, 168.128163), App.Rotation())
sketch4.addGeometry(Part.Circle(App.Vector(-71.5, -7.9, 0), App.Vector(0, 0, 1), 1.5), False)
sketch4.addGeometry(Part.Circle(App.Vector(-98.8, -7.9, 0), App.Vector(0, 0, 1), 1.5), False)
sketch4.addConstraint(Sketcher.Constraint("Equal", 0, 1))
sketch4.addConstraint(Sketcher.Constraint("Horizontal", 0, 3, 1, 3))
sketch4.addConstraint(Sketcher.Constraint("Diameter", 0, Q("3 mm")))
sketch4.addConstraint(Sketcher.Constraint("DistanceY", 0, 3, -1, 1, Q("7.9 mm")))
sketch4.addConstraint(Sketcher.Constraint("DistanceX", 1, 3, 0, 3, Q("27.3 mm")))
sketch4.addConstraint(Sketcher.Constraint("DistanceX", 0, 3, -1, 1, Q("71.529204 mm")))
pocket2 = body.newObject("PartDesign::Pocket", "Pocket001")
pocket2.Profile = sketch4
pocket2.Length = 1
doc.recompute()

datumplane = body.newObject("PartDesign::Plane", "DatumPlane")
datumplane.AttachmentSupport = (doc.getObject("YZ_Plane"), [""])
datumplane.MapMode = "FlatFace"
datumplane.AttachmentOffset = App.Placement(App.Vector(0, 0, 127.128163), App.Rotation())
mirrored = body.newObject("PartDesign::Mirrored", "Mirrored")
mirrored.Originals = [pad2, pocket1, pocket2]
mirrored.MirrorPlane = (datumplane, [""])
body.Tip = mirrored
doc.recompute()

fillet2 = body.newObject("PartDesign::Fillet", "Fillet001")
fillet2.Base = (mirrored, edges_at(mirrored, [(87.628, -103.429, -15.8), (87.628, -66.929, -15.8)]))
fillet2.Radius = 2
doc.recompute()

fillet3 = body.newObject("PartDesign::Fillet", "Fillet002")
fillet3.Base = (fillet2, edges_at(fillet2, [(168.128, -85.179, 3), (86.128, -85.179, 3)]))
fillet3.Radius = 2

sketch5 = body.newObject("Sketcher::SketchObject", "Sketch004")
sketch5.AttachmentSupport = (doc.getObject("XY_Plane"), [""])
sketch5.MapMode = "FlatFace"
sketch5.addGeometry(Part.LineSegment(App.Vector(137.1, -119.4, 0), App.Vector(137.1, -122.4, 0)), False)
sketch5.addGeometry(Part.LineSegment(App.Vector(137.1, -122.4, 0), App.Vector(117.1, -122.4, 0)), False)
sketch5.addGeometry(Part.LineSegment(App.Vector(117.1, -122.4, 0), App.Vector(117.1, -119.4, 0)), False)
sketch5.addGeometry(Part.LineSegment(App.Vector(117.1, -119.4, 0), App.Vector(137.1, -119.4, 0)), False)
sketch5.addConstraint(Sketcher.Constraint("Coincident", 0, 2, 1, 1))
sketch5.addConstraint(Sketcher.Constraint("Coincident", 1, 2, 2, 1))
sketch5.addConstraint(Sketcher.Constraint("Coincident", 2, 2, 3, 1))
sketch5.addConstraint(Sketcher.Constraint("Coincident", 3, 2, 0, 1))
sketch5.addConstraint(Sketcher.Constraint("Vertical", 0))
sketch5.addConstraint(Sketcher.Constraint("Horizontal", 1))
sketch5.addConstraint(Sketcher.Constraint("Vertical", 2))
sketch5.addConstraint(Sketcher.Constraint("Horizontal", 3))
sketch5.addConstraint(Sketcher.Constraint("DistanceX", 1, 2, 1, 1, Q("20 mm")))
sketch5.addConstraint(Sketcher.Constraint("DistanceY", 0, 2, 0, 1, Q("3 mm")))
sketch5.addConstraint(Sketcher.Constraint("DistanceX", -1, 1, 0, 2, Q("137.128163 mm")))
sketch5.addConstraint(Sketcher.Constraint("DistanceY", 0, 2, -1, 1, Q("122.351547 mm")))
pad3 = body.newObject("PartDesign::Pad", "Pad002")
pad3.Profile = sketch5
pad3.Length = 8
pad3.Reversed = True

sketch6 = body.newObject("Sketcher::SketchObject", "Sketch005")
sketch6.AttachmentSupport = (doc.getObject("XZ_Plane"), [""])
sketch6.MapMode = "FlatFace"
sketch6.AttachmentOffset = App.Placement(App.Vector(0, 0, 119.351547), App.Rotation())
sketch6.addGeometry(Part.Circle(App.Vector(133.1, -3.5, 0), App.Vector(0, 0, 1), 1.5), False)
sketch6.addGeometry(Part.Circle(App.Vector(121.1, -3.5, 0), App.Vector(0, 0, 1), 1.5), False)
sketch6.addConstraint(Sketcher.Constraint("Equal", 0, 1))
sketch6.addConstraint(Sketcher.Constraint("Horizontal", 0, 3, 1, 3))
sketch6.addConstraint(Sketcher.Constraint("Diameter", 0, Q("3 mm")))
sketch6.addConstraint(Sketcher.Constraint("DistanceX", 1, 3, 0, 3, Q("12 mm")))
sketch6.addConstraint(Sketcher.Constraint("DistanceY", 0, 3, -1, 1, Q("3.5 mm")))
sketch6.addConstraint(Sketcher.Constraint("DistanceX", -1, 1, 0, 3, Q("133.128163 mm")))
pocket3 = body.newObject("PartDesign::Pocket", "Pocket002")
pocket3.Profile = sketch6
pocket3.Length = 3
pocket3.Reversed = True

sketch7 = body.newObject("Sketcher::SketchObject", "Sketch006")
sketch7.AttachmentSupport = (doc.getObject("XZ_Plane"), [""])
sketch7.MapMode = "FlatFace"
sketch7.AttachmentOffset = App.Placement(App.Vector(0, 0, 119.351547), App.Rotation())
sketch7.addGeometry(Part.Circle(App.Vector(133.1, -3.5, 0), App.Vector(0, 0, 1), 2.2), False)
sketch7.addGeometry(Part.Circle(App.Vector(121.1, -3.5, 0), App.Vector(0, 0, 1), 2.2), False)
sketch7.addConstraint(Sketcher.Constraint("Equal", 0, 1))
sketch7.addConstraint(Sketcher.Constraint("Horizontal", 0, 3, 1, 3))
sketch7.addConstraint(Sketcher.Constraint("Diameter", 0, Q("4.5 mm")))
sketch7.addConstraint(Sketcher.Constraint("DistanceX", 1, 3, 0, 3, Q("12 mm")))
sketch7.addConstraint(Sketcher.Constraint("DistanceY", 0, 3, -1, 1, Q("3.5 mm")))
sketch7.addConstraint(Sketcher.Constraint("DistanceX", -1, 1, 0, 3, Q("133.128163 mm")))
pocket4 = body.newObject("PartDesign::Pocket", "Pocket003")
pocket4.Profile = sketch7
pocket4.Length = 1
pocket4.Reversed = True
doc.recompute()

fillet4 = body.newObject("PartDesign::Fillet", "Fillet003")
fillet4.Base = (pocket4, edges_at(pocket4, [(117.128, -120.852, -8), (137.128, -120.852, -8)]))
fillet4.Radius = 2

doc.recompute()
